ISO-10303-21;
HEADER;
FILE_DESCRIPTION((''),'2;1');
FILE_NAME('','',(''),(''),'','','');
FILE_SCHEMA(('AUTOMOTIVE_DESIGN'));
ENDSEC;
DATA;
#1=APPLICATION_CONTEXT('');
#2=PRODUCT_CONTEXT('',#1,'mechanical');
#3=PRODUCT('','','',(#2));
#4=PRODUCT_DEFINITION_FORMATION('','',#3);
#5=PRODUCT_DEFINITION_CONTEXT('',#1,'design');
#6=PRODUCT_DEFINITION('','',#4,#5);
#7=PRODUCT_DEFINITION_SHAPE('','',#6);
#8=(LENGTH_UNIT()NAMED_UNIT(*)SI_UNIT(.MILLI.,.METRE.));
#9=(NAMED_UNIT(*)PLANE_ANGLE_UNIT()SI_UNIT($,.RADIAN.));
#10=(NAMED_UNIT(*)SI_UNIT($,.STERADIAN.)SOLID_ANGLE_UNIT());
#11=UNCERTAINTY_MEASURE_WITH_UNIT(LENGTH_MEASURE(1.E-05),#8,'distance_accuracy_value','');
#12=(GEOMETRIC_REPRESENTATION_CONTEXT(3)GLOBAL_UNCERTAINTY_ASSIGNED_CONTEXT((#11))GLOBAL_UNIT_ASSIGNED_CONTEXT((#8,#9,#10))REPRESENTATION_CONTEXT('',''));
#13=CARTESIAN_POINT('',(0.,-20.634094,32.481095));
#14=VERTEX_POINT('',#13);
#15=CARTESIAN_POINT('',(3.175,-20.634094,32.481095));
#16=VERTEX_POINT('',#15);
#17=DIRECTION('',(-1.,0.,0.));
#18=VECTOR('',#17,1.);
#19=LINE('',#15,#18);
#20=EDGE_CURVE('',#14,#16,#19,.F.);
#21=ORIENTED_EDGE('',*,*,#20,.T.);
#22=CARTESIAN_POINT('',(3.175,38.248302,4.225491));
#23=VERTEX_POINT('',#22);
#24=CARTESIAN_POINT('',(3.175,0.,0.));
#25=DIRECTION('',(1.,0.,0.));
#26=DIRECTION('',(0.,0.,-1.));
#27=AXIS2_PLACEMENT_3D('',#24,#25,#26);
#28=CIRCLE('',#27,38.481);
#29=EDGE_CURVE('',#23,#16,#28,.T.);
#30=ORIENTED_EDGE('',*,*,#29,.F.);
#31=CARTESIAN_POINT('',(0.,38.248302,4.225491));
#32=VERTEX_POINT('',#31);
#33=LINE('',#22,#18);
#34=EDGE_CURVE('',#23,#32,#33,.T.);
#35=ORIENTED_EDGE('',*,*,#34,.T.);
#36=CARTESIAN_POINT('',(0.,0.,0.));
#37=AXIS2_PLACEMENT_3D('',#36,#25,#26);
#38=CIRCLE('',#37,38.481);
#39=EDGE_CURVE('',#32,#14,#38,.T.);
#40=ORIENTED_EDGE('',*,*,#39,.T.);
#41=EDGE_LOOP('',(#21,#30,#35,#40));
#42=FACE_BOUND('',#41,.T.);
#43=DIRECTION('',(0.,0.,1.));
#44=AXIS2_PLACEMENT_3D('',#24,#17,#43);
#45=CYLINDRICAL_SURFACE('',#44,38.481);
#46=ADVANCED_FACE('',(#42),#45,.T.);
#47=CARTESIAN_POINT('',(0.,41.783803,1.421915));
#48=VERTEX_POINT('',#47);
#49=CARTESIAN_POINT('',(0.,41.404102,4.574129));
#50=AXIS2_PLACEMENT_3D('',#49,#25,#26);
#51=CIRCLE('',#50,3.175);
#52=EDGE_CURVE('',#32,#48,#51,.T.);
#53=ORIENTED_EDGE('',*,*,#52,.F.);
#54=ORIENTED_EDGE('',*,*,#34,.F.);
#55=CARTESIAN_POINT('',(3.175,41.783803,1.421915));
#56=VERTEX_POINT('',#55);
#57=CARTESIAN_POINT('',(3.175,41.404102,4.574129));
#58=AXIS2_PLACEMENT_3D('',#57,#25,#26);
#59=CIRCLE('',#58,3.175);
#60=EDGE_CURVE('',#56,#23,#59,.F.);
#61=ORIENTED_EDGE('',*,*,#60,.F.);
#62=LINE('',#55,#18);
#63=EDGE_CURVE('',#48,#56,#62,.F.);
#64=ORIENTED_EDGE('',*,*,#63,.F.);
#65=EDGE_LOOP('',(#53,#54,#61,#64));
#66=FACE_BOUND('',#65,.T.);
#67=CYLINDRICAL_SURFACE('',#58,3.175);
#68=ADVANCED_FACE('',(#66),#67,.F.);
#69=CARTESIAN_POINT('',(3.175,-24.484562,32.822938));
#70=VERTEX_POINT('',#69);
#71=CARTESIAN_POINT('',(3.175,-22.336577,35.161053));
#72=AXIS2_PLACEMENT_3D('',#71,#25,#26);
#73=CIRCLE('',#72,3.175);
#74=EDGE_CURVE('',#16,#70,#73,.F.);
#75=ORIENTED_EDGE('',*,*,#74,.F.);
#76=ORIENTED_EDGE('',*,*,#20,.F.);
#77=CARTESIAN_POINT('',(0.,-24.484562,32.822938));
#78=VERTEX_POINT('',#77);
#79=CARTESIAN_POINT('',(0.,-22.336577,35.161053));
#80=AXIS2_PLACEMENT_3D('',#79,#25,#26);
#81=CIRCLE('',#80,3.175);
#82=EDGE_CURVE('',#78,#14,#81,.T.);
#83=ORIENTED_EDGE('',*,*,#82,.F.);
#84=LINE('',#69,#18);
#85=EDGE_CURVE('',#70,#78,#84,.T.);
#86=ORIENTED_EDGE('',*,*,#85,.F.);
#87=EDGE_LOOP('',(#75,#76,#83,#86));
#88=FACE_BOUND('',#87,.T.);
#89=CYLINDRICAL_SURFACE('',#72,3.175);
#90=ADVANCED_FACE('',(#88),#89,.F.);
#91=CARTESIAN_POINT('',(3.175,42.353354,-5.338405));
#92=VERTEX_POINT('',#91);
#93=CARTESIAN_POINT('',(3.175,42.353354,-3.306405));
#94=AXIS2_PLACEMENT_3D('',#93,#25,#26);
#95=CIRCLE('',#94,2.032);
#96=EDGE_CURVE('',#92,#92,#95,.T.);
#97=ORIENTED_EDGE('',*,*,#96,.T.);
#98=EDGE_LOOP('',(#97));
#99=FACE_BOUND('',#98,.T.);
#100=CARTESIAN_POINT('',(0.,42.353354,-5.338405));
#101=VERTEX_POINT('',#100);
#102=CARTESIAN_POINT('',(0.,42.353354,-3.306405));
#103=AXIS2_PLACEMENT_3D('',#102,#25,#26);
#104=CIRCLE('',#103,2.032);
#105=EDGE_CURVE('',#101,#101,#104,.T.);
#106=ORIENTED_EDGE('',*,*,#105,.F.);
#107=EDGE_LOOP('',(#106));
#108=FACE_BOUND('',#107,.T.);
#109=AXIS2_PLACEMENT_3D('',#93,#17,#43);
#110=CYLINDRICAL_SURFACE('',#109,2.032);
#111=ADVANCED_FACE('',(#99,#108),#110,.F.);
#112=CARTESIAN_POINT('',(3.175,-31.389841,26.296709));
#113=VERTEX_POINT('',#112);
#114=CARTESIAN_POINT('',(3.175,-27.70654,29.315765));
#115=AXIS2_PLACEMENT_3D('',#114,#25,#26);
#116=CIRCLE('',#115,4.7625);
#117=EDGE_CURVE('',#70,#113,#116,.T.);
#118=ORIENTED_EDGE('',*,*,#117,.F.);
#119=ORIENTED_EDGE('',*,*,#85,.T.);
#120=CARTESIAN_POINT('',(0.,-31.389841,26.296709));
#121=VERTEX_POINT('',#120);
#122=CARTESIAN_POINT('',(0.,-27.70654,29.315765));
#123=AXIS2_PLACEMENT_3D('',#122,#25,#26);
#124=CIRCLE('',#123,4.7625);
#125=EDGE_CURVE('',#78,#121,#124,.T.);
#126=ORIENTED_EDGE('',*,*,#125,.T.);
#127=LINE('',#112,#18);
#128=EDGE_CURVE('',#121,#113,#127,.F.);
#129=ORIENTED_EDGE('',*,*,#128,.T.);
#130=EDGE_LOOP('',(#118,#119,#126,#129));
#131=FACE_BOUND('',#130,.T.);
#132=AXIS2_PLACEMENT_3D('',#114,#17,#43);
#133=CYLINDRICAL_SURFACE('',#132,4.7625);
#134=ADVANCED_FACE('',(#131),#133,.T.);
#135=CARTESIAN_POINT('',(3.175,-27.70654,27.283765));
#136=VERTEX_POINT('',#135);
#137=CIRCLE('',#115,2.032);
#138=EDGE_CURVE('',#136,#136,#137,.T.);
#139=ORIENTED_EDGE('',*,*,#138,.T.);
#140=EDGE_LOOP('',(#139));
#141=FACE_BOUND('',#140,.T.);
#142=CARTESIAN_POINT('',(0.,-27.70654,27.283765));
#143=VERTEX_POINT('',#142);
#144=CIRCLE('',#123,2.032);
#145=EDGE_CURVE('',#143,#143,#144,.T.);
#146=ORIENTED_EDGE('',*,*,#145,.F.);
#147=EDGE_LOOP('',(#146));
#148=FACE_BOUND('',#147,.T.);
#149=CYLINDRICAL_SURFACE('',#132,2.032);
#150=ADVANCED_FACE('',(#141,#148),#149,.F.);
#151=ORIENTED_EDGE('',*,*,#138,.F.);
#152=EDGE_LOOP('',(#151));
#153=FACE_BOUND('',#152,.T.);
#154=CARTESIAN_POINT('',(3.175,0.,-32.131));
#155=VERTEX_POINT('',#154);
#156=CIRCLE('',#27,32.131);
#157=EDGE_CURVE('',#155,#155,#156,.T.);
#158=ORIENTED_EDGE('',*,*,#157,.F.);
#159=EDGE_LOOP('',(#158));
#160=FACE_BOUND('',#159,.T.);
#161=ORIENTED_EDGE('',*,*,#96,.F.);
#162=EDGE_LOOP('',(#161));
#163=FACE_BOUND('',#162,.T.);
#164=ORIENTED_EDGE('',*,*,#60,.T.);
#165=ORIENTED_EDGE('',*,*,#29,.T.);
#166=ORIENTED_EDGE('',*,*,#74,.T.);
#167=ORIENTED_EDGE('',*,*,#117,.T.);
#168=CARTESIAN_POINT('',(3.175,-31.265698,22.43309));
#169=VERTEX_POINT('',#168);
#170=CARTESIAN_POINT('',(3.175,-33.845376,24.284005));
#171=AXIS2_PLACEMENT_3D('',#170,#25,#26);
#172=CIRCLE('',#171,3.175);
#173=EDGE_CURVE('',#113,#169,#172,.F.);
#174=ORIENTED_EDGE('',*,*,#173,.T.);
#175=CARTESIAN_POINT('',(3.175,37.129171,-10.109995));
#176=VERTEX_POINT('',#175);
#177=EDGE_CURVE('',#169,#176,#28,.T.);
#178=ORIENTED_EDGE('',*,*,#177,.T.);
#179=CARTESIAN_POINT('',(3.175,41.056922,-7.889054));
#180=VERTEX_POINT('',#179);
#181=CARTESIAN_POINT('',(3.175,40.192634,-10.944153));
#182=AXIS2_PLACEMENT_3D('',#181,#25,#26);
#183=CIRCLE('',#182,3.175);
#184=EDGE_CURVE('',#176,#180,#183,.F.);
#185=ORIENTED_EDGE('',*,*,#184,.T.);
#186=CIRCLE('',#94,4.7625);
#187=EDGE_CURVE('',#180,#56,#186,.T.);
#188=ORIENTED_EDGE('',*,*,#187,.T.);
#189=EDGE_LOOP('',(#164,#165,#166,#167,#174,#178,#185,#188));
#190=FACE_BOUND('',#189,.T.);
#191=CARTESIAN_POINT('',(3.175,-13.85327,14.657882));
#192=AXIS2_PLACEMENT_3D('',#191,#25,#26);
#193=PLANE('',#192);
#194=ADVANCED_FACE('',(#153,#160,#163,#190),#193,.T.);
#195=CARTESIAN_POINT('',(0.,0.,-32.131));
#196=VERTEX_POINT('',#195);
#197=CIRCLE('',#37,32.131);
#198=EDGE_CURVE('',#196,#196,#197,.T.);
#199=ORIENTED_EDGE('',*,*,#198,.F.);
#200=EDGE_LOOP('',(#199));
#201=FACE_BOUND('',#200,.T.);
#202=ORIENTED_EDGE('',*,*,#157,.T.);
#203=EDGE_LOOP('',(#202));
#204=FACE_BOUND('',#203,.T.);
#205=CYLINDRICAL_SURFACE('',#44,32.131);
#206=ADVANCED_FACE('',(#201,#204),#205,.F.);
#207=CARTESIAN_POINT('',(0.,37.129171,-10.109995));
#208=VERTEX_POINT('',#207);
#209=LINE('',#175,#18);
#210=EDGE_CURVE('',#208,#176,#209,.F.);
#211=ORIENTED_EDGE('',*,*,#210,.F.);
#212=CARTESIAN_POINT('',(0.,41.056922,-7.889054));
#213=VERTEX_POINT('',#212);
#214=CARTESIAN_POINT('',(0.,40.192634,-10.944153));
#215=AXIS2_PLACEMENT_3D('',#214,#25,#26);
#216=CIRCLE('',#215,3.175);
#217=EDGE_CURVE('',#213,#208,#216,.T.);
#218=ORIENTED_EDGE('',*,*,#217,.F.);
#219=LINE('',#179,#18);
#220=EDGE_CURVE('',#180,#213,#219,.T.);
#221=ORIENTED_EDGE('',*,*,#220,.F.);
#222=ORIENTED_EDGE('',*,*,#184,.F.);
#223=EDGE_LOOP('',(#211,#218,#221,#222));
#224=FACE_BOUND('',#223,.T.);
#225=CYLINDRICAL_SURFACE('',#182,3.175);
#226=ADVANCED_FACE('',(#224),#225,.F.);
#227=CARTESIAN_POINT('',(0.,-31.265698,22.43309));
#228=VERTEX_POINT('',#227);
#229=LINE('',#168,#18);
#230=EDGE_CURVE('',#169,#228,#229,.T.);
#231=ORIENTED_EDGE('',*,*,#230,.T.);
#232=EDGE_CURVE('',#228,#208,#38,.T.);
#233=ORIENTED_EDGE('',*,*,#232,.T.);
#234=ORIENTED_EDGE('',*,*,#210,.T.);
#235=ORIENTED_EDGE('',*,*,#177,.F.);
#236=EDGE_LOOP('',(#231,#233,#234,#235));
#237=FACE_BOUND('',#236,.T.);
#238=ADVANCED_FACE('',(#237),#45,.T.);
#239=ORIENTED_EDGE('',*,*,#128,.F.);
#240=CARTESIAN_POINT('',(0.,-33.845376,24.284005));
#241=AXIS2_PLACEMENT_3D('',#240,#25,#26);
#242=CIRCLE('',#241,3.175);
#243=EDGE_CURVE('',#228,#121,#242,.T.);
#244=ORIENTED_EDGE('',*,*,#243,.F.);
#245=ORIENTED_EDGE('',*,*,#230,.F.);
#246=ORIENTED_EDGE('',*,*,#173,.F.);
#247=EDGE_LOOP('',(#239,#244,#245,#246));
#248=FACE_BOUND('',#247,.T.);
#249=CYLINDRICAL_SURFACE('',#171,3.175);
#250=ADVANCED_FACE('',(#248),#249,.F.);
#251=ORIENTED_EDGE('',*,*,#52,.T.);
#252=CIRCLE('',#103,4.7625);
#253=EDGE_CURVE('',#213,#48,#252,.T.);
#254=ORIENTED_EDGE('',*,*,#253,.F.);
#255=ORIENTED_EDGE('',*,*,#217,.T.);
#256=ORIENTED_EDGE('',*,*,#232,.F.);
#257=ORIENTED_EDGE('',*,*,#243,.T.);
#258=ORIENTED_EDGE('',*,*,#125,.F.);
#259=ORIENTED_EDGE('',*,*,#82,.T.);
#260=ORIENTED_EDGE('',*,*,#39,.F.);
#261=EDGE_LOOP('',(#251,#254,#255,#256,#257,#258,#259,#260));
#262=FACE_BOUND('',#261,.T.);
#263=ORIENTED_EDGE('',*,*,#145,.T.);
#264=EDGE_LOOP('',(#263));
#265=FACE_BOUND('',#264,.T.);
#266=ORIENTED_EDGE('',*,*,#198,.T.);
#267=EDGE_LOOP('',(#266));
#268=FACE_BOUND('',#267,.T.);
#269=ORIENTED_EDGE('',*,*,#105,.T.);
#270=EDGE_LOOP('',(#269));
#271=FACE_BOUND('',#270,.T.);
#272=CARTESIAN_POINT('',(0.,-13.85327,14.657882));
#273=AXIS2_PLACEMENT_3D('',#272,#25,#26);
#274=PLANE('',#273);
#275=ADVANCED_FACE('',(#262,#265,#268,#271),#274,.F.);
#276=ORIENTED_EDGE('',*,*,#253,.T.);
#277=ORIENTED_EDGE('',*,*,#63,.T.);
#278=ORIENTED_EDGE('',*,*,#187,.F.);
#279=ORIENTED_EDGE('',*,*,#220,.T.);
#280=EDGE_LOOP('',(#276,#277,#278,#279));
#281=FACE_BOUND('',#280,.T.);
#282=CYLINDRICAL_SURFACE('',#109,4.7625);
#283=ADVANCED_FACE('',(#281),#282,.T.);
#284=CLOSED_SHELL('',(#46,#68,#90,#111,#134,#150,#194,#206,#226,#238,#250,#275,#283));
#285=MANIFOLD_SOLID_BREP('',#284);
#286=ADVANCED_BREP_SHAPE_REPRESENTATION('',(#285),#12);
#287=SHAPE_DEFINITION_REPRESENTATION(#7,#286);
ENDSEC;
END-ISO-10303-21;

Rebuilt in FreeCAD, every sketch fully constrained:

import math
import FreeCAD as App
import Part
import Sketcher

V = App.Vector
Q = App.Units.Quantity


def edges_at(feature, points):
    """Names of the edges that pass closest to the given points."""
    edges = feature.Shape.Edges
    near = lambda p: min(range(len(edges)), key=lambda i: edges[i].distToShape(Part.Vertex(*p))[0])
    return sorted({f"Edge{near(p) + 1}" for p in points})

doc = App.newDocument("Part")
params = doc.addObject("Spreadsheet::Sheet", "Params")
for row, (alias, value) in enumerate([
    ("sketch1_diameter", "0.16 in"),
    ("sketch1_diameter2", "2.53 in"),
    ("sketch1_radius", "1.515 in"),
    ("sketch1_radius2", "0.1875 in"),
    ("pad1_length", "0.125 in"),
    ("fillet_radius", "0.125 in"),
], start=1):
    params.set(f"A{row}", alias)
    params.set(f"B{row}", "=" + value)
    params.setAlias(f"B{row}", alias)

body = doc.addObject("PartDesign::Body", "Body")

# Sketch on YZ plane
sketch1 = doc.addObject("Sketcher::SketchObject", "Sketch")
body.addObject(sketch1)
sketch1.AttachmentSupport = (doc.YZ_Plane, [""])
sketch1.MapMode = "FlatFace"
sketch1.addGeometry(Part.ArcOfCircle(Part.Circle(V(0, 0, 0), V(0, 0, 1), 38.481), math.radians(-0.802976), math.radians(127.001715)), False)
sketch1.addGeometry(Part.ArcOfCircle(Part.Circle(V(-27.70654, 29.315765, 0), V(0, 0, 1), 4.7625), math.radians(17.294802), math.radians(249.472172)), False)
sketch1.addGeometry(Part.ArcOfCircle(Part.Circle(V(0, 0, 0), V(0, 0, 1), 38.481), math.radians(139.765259), math.radians(351.875248)), False)
sketch1.addGeometry(Part.ArcOfCircle(Part.Circle(V(42.353354, -3.306405, 0), V(0, 0, 1), 4.7625), math.radians(-153.405116), math.radians(144.477387)), False)
sketch1.addGeometry(Part.Circle(V(-27.70654, 29.315765, 0), V(0, 0, 1), 2.032), False)
sketch1.addGeometry(Part.Circle(V(0, 0, 0), V(0, 0, 1), 32.131), False)
sketch1.addGeometry(Part.Circle(V(42.353354, -3.306405, 0), V(0, 0, 1), 2.032), False)
sketch1.addConstraint(Sketcher.Constraint("Coincident", 0, 2, 1, 1))
sketch1.addConstraint(Sketcher.Constraint("Coincident", 1, 2, 2, 1))
sketch1.addConstraint(Sketcher.Constraint("Coincident", 2, 2, 3, 1))
sketch1.addConstraint(Sketcher.Constraint("Coincident", 3, 2, 0, 1))
sketch1.addConstraint(Sketcher.Constraint("Coincident", 0, 3, -1, 1))
sketch1.addConstraint(Sketcher.Constraint("Coincident", 2, 3, -1, 1))
sketch1.addConstraint(Sketcher.Constraint("Coincident", 5, 3, -1, 1))
sketch1.addConstraint(Sketcher.Constraint("Coincident", 4, 3, 1, 3))
sketch1.addConstraint(Sketcher.Constraint("Coincident", 6, 3, 3, 3))
sketch1.addConstraint(Sketcher.Constraint("Equal", 0, 2))
sketch1.addConstraint(Sketcher.Constraint("Equal", 1, 3))
sketch1.addConstraint(Sketcher.Constraint("Equal", 4, 6))
sketch1.addConstraint(Sketcher.Constraint("Diameter", 4, Q("0.16 in")))
sketch1.addConstraint(Sketcher.Constraint("Diameter", 5, Q("2.53 in")))
sketch1.addConstraint(Sketcher.Constraint("Radius", 0, Q("1.515 in")))
sketch1.addConstraint(Sketcher.Constraint("Radius", 1, Q("0.1875 in")))
sketch1.addConstraint(Sketcher.Constraint("DistanceY", -1, 1, 0, 2, 30.7316))
sketch1.addConstraint(Sketcher.Constraint("DistanceX", 2, 2, 3, 3, 4.2586))
sketch1.addConstraint(Sketcher.Constraint("DistanceY", 2, 2, 3, 2, 4.8992))
sketch1.addConstraint(Sketcher.Constraint("DistanceX", 1, 3, -1, 1, 27.70654))
sketch1.setExpression("Constraints[12]", "Params.sketch1_diameter")
sketch1.setExpression("Constraints[13]", "Params.sketch1_diameter2")
sketch1.setExpression("Constraints[14]", "Params.sketch1_radius")
sketch1.setExpression("Constraints[15]", "Params.sketch1_radius2")
pad1 = doc.addObject("PartDesign::Pad", "Pad")
body.addObject(pad1)
pad1.Profile = sketch1
pad1.setExpression("Length", "Params.pad1_length")
doc.recompute()

fillet = doc.addObject("PartDesign::Fillet", "Fillet")
body.addObject(fillet)
fillet.Base = (pad1, edges_at(pad1, [
    (1.587, -23.159, 30.732),
    (1.587, 38.477, -0.539),
    (1.587, 38.095, -5.438),
    (1.587, -29.377, 24.856),
]))
fillet.setExpression("Radius", "Params.fillet_radius")

doc.recompute()
